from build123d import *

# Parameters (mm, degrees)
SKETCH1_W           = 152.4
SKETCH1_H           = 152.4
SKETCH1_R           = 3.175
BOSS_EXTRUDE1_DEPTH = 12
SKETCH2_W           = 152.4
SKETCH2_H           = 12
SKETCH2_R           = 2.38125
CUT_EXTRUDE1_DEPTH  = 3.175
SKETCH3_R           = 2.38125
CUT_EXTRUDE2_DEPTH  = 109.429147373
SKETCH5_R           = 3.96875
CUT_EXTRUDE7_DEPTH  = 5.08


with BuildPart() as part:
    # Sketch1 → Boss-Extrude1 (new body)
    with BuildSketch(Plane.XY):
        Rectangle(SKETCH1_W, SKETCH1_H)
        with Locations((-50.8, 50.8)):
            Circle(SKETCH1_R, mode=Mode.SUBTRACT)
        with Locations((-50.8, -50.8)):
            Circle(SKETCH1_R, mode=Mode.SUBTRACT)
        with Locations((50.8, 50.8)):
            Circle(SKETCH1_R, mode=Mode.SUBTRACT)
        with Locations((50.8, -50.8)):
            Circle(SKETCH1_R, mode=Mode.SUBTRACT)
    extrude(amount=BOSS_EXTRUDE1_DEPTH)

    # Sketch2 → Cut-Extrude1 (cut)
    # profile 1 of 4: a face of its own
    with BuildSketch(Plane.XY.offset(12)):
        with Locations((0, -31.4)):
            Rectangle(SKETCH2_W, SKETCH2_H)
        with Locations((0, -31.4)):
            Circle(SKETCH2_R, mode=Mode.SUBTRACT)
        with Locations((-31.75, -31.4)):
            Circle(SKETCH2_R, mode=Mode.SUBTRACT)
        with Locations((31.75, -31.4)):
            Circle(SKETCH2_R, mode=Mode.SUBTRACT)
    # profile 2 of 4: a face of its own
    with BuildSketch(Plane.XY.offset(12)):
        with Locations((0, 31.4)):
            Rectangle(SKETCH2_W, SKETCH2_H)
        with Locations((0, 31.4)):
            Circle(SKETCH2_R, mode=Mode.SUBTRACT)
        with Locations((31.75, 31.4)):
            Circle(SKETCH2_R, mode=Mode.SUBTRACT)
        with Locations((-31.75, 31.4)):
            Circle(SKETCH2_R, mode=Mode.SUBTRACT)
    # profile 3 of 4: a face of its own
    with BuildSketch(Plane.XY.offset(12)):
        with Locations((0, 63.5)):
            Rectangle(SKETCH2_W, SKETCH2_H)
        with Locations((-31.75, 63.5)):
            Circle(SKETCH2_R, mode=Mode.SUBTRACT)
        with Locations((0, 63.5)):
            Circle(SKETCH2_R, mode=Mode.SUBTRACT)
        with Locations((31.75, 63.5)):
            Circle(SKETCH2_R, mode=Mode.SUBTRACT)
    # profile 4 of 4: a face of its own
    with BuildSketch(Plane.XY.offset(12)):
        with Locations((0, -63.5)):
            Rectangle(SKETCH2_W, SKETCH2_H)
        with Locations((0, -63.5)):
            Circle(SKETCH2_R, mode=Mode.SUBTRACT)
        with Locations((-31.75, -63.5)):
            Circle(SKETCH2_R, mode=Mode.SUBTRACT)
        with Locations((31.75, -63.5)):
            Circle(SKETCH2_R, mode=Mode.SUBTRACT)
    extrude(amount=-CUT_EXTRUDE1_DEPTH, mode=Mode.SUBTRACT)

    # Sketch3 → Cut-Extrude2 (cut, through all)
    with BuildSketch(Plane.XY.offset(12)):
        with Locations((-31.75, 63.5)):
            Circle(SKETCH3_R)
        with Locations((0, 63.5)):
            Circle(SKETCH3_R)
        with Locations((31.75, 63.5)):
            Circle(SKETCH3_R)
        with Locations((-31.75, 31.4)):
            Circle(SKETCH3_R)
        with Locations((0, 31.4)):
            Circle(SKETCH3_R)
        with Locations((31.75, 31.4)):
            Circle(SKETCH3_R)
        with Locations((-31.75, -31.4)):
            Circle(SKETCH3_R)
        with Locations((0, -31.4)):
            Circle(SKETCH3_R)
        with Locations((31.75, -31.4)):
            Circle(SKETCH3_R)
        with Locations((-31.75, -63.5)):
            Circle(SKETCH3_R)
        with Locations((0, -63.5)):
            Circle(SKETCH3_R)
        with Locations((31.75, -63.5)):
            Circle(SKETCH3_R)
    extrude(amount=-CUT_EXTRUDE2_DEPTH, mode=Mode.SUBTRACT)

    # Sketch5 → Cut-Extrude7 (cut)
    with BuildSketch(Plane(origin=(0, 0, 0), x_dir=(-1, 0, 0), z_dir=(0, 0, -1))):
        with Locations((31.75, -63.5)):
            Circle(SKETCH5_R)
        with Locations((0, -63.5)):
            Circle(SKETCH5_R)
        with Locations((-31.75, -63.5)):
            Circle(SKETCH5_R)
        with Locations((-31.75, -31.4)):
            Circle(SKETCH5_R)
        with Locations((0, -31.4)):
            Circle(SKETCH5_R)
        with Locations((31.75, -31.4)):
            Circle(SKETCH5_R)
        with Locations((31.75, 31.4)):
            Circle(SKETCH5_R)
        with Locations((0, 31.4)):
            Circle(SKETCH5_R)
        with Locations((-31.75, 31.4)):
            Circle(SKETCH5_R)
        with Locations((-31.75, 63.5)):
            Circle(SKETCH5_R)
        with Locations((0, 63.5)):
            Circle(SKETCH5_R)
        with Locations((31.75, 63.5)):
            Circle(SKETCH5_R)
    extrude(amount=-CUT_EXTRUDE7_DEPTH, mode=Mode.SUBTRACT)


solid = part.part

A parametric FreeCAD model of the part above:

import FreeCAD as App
import Part
import Sketcher

V = App.Vector
Q = App.Units.Quantity


def add_polygon(sketch, points):
    """Adds a closed chain of lines whose ends are joined by coincident constraints."""
    first, n = sketch.GeometryCount, len(points)
    for a, b in zip(points, points[1:] + points[:1]):
        sketch.addGeometry(Part.LineSegment(App.Vector(*a, 0), App.Vector(*b, 0)), False)
    for i in range(n):
        sketch.addConstraint(Sketcher.Constraint("Coincident", first + i, 2, first + (i + 1) % n, 1))

doc = App.newDocument("Part")
body = doc.addObject("PartDesign::Body", "Body")

sketch1 = doc.addObject("Sketcher::SketchObject", "Sketch")
body.addObject(sketch1)
sketch1.AttachmentSupport = (doc.XY_Plane, [""])
sketch1.MapMode = "FlatFace"
add_polygon(sketch1, [(-76.2, 76.2), (-76.2, -76.2), (76.2, -76.2), (76.2, 76.2)])
sketch1.addGeometry(Part.Circle(V(-50.8, -50.8, 0), V(0, 0, 1), 3.2), False)
sketch1.addGeometry(Part.Circle(V(50.8, -50.8, 0), V(0, 0, 1), 3.2), False)
sketch1.addGeometry(Part.Circle(V(-50.8, 50.8, 0), V(0, 0, 1), 3.2), False)
sketch1.addGeometry(Part.Circle(V(50.8, 50.8, 0), V(0, 0, 1), 3.2), False)
sketch1.addConstraint([
    Sketcher.Constraint("Vertical", 0),
    Sketcher.Constraint("Horizontal", 1),
    Sketcher.Constraint("Vertical", 2),
    Sketcher.Constraint("Horizontal", 3),
    Sketcher.Constraint("Equal", 4, 5),
    Sketcher.Constraint("Equal", 5, 6),
    Sketcher.Constraint("Equal", 6, 7),
    Sketcher.Constraint("Symmetric", 5, 3, 6, 3, -1, 1),
    Sketcher.Constraint("Symmetric", 4, 3, 7, 3, -1, 1),
    Sketcher.Constraint("Symmetric", 0, 2, 2, 2, -1, 1),
    Sketcher.Constraint("Symmetric", 4, 3, 5, 3, -2),
    Sketcher.Constraint("Equal", 3, 0),
    Sketcher.Constraint("Diameter", 4, Q("0.25 in")),
    Sketcher.Constraint("DistanceX", 1, 1, 1, 2, Q("6 in")),
    Sketcher.Constraint("DistanceX", 4, 3, -1, 1, Q("2 in")),
    Sketcher.Constraint("DistanceY", 4, 3, -1, 1, Q("2 in")),
])
pad1 = doc.addObject("PartDesign::Pad", "Pad")
body.addObject(pad1)
pad1.Profile = sketch1
pad1.Length = 12

sketch2 = doc.addObject("Sketcher::SketchObject", "Sketch001")
body.addObject(sketch2)
sketch2.AttachmentSupport = (doc.XY_Plane, [""])
sketch2.MapMode = "FlatFace"
sketch2.AttachmentOffset = App.Placement(V(0, 0, 12), App.Rotation())
add_polygon(sketch2, [(-76.2, -25.4), (-76.2, -37.4), (76.2, -37.4), (76.2, -25.4)])
sketch2.addGeometry(Part.Circle(V(-31.8, -31.4, 0), V(0, 0, 1), 2.4), False)
sketch2.addGeometry(Part.Circle(V(0, -31.4, 0), V(0, 0, 1), 2.4), False)
sketch2.addGeometry(Part.Circle(V(31.8, -31.4, 0), V(0, 0, 1), 2.4), False)
add_polygon(sketch2, [(-76.2, 37.4), (-76.2, 25.4), (76.2, 25.4), (76.2, 37.4)])
sketch2.addGeometry(Part.Circle(V(-31.8, 31.4, 0), V(0, 0, 1), 2.4), False)
sketch2.addGeometry(Part.Circle(V(0, 31.4, 0), V(0, 0, 1), 2.4), False)
sketch2.addGeometry(Part.Circle(V(31.8, 31.4, 0), V(0, 0, 1), 2.4), False)
add_polygon(sketch2, [(-76.2, 69.5), (-76.2, 57.5), (76.2, 57.5), (76.2, 69.5)])
sketch2.addGeometry(Part.Circle(V(-31.8, 63.5, 0), V(0, 0, 1), 2.4), False)
sketch2.addGeometry(Part.Circle(V(0, 63.5, 0), V(0, 0, 1), 2.4), False)
sketch2.addGeometry(Part.Circle(V(31.8, 63.5, 0), V(0, 0, 1), 2.4), False)
add_polygon(sketch2, [(-76.2, -57.5), (-76.2, -69.5), (76.2, -69.5), (76.2, -57.5)])
sketch2.addGeometry(Part.Circle(V(-31.8, -63.5, 0), V(0, 0, 1), 2.4), False)
sketch2.addGeometry(Part.Circle(V(0, -63.5, 0), V(0, 0, 1), 2.4), False)
sketch2.addGeometry(Part.Circle(V(31.8, -63.5, 0), V(0, 0, 1), 2.4), False)
sketch2.addConstraint([
    Sketcher.Constraint("Vertical", 0),
    Sketcher.Constraint("Horizontal", 1),
    Sketcher.Constraint("Vertical", 2),
    Sketcher.Constraint("Horizontal", 3),
    Sketcher.Constraint("Vertical", 7),
    Sketcher.Constraint("Horizontal", 8),
    Sketcher.Constraint("Vertical", 9),
    Sketcher.Constraint("Horizontal", 10),
    Sketcher.Constraint("Vertical", 14),
    Sketcher.Constraint("Horizontal", 15),
    Sketcher.Constraint("Vertical", 16),
    Sketcher.Constraint("Horizontal", 17),
    Sketcher.Constraint("Vertical", 21),
    Sketcher.Constraint("Horizontal", 22),
    Sketcher.Constraint("Vertical", 23),
    Sketcher.Constraint("Horizontal", 24),
    Sketcher.Constraint("Equal", 4, 5),
    Sketcher.Constraint("Equal", 5, 6),
    Sketcher.Constraint("Equal", 6, 11),
    Sketcher.Constraint("Equal", 11, 12),
    Sketcher.Constraint("Equal", 12, 13),
    Sketcher.Constraint("Equal", 13, 18),
    Sketcher.Constraint("Equal", 18, 19),
    Sketcher.Constraint("Equal", 19, 20),
    Sketcher.Constraint("Equal", 20, 25),
    Sketcher.Constraint("Equal", 25, 26),
    Sketcher.Constraint("Equal", 26, 27),
    Sketcher.Constraint("Symmetric", 6, 3, 11, 3, -1, 1),
    Sketcher.Constraint("Symmetric", 5, 3, 12, 3, -1, 1),
    Sketcher.Constraint("Symmetric", 4, 3, 13, 3, -1, 1),
    Sketcher.Constraint("Symmetric", 20, 3, 25, 3, -1, 1),
    Sketcher.Constraint("Symmetric", 19, 3, 26, 3, -1, 1),
    Sketcher.Constraint("Symmetric", 18, 3, 27, 3, -1, 1),
    Sketcher.Constraint("Symmetric", 2, 2, 7, 2, -1, 1),
    Sketcher.Constraint("Symmetric", 0, 2, 9, 2, -1, 1),
    Sketcher.Constraint("Symmetric", 16, 2, 21, 2, -1, 1),
    Sketcher.Constraint("Symmetric", 14, 2, 23, 2, -1, 1),
    Sketcher.Constraint("Symmetric", 4, 3, 6, 3, -2),
    Sketcher.Constraint("Symmetric", 18, 3, 20, 3, -2),
    Sketcher.Constraint("PointOnObject", 5, 3, -2),
    Sketcher.Constraint("PointOnObject", 19, 3, -2),
    Sketcher.Constraint("Horizontal", 4, 3, 5, 3),
    Sketcher.Constraint("Horizontal", 18, 3, 19, 3),
    Sketcher.Constraint("Vertical", 11, 3, 18, 3),
    Sketcher.Constraint("Vertical", 3, 2, 7, 2),
    Sketcher.Constraint("Vertical", 10, 2, 14, 2),
    Sketcher.Constraint("Vertical", 9, 2, 15, 2),
    Sketcher.Constraint("Equal", 9, 14),
    Sketcher.Constraint("DistanceX", 1, 1, 1, 2, Q("6 in")),
    Sketcher.Constraint("Diameter", 4, Q("0.1875 in")),
    Sketcher.Constraint("DistanceY", 2, 2, -1, 1, Q("1 in")),
    Sketcher.Constraint("DistanceY", -1, 1, 18, 3, Q("2.5 in")),
    Sketcher.Constraint("DistanceX", 4, 3, 6, 3, Q("2.5 in")),
    Sketcher.Constraint("DistanceY", 13, 3, 16, 2, Q("1.5 in")),
    Sketcher.Constraint("DistanceY", 0, 2, 0, 1, 12.0),
    Sketcher.Constraint("DistanceY", 4, 3, -1, 1, 31.4),
])
pocket1 = doc.addObject("PartDesign::Pocket", "Pocket")
body.addObject(pocket1)
pocket1.Profile = sketch2
pocket1.Length = Q("0.125 in")

sketch3 = doc.addObject("Sketcher::SketchObject", "Sketch002")
body.addObject(sketch3)
sketch3.AttachmentSupport = (doc.XY_Plane, [""])
sketch3.MapMode = "FlatFace"
sketch3.AttachmentOffset = App.Placement(V(0, 0, 12), App.Rotation())
sketch3.addGeometry([
    Part.Circle(V(-31.8, 63.5, 0), V(0, 0, 1), 2.4),
    Part.Circle(V(0, 63.5, 0), V(0, 0, 1), 2.4),
    Part.Circle(V(31.8, 63.5, 0), V(0, 0, 1), 2.4),
    Part.Circle(V(-31.8, 31.4, 0), V(0, 0, 1), 2.4),
    Part.Circle(V(0, 31.4, 0), V(0, 0, 1), 2.4),
    Part.Circle(V(31.8, 31.4, 0), V(0, 0, 1), 2.4),
    Part.Circle(V(-31.8, -31.4, 0), V(0, 0, 1), 2.4),
    Part.Circle(V(0, -31.4, 0), V(0, 0, 1), 2.4),
    Part.Circle(V(31.8, -31.4, 0), V(0, 0, 1), 2.4),
    Part.Circle(V(-31.8, -63.5, 0), V(0, 0, 1), 2.4),
    Part.Circle(V(0, -63.5, 0), V(0, 0, 1), 2.4),
    Part.Circle(V(31.8, -63.5, 0), V(0, 0, 1), 2.4),
], False)
sketch3.addConstraint([
    Sketcher.Constraint("Equal", 0, 1),
    Sketcher.Constraint("Equal", 1, 2),
    Sketcher.Constraint("Equal", 2, 3),
    Sketcher.Constraint("Equal", 3, 4),
    Sketcher.Constraint("Equal", 4, 5),
    Sketcher.Constraint("Equal", 5, 6),
    Sketcher.Constraint("Equal", 6, 7),
    Sketcher.Constraint("Equal", 7, 8),
    Sketcher.Constraint("Equal", 8, 9),
    Sketcher.Constraint("Equal", 9, 10),
    Sketcher.Constraint("Equal", 10, 11),
    Sketcher.Constraint("Symmetric", 5, 3, 6, 3, -1, 1),
    Sketcher.Constraint("Symmetric", 4, 3, 7, 3, -1, 1),
    Sketcher.Constraint("Symmetric", 3, 3, 8, 3, -1, 1),
    Sketcher.Constraint("Symmetric", 2, 3, 9, 3, -1, 1),
    Sketcher.Constraint("Symmetric", 1, 3, 10, 3, -1, 1),
    Sketcher.Constraint("Symmetric", 0, 3, 11, 3, -1, 1),
    Sketcher.Constraint("Symmetric", 0, 3, 2, 3, -2),
    Sketcher.Constraint("Symmetric", 3, 3, 5, 3, -2),
    Sketcher.Constraint("PointOnObject", 1, 3, -2),
    Sketcher.Constraint("PointOnObject", 4, 3, -2),
    Sketcher.Constraint("Horizontal", 0, 3, 1, 3),
    Sketcher.Constraint("Horizontal", 3, 3, 4, 3),
    Sketcher.Constraint("Vertical", 0, 3, 3, 3),
    Sketcher.Constraint("Diameter", 0, Q("0.1875 in")),
    Sketcher.Constraint("DistanceY", -1, 1, 0, 3, Q("2.5 in")),
    Sketcher.Constraint("DistanceX", 0, 3, 2, 3, Q("2.5 in")),
    Sketcher.Constraint("DistanceY", -1, 1, 3, 3, 31.4),
])
pocket2 = doc.addObject("PartDesign::Pocket", "Pocket001")
body.addObject(pocket2)
pocket2.Profile = sketch3
pocket2.Type = "ThroughAll"

sketch4 = doc.addObject("Sketcher::SketchObject", "Sketch003")
body.addObject(sketch4)
sketch4.AttachmentSupport = (doc.XY_Plane, [""])
sketch4.MapMode = "FlatFace"
sketch4.addGeometry([
    Part.Circle(V(-31.8, -63.5, 0), V(0, 0, 1), 4),
    Part.Circle(V(0, -63.5, 0), V(0, 0, 1), 4),
    Part.Circle(V(31.8, -63.5, 0), V(0, 0, 1), 4),
    Part.Circle(V(31.8, -31.4, 0), V(0, 0, 1), 4),
    Part.Circle(V(0, -31.4, 0), V(0, 0, 1), 4),
    Part.Circle(V(-31.8, -31.4, 0), V(0, 0, 1), 4),
    Part.Circle(V(-31.8, 31.4, 0), V(0, 0, 1), 4),
    Part.Circle(V(0, 31.4, 0), V(0, 0, 1), 4),
    Part.Circle(V(31.8, 31.4, 0), V(0, 0, 1), 4),
    Part.Circle(V(31.8, 63.5, 0), V(0, 0, 1), 4),
    Part.Circle(V(0, 63.5, 0), V(0, 0, 1), 4),
    Part.Circle(V(-31.8, 63.5, 0), V(0, 0, 1), 4),
], False)
sketch4.addConstraint([
    Sketcher.Constraint("Equal", 0, 1),
    Sketcher.Constraint("Equal", 1, 2),
    Sketcher.Constraint("Equal", 2, 3),
    Sketcher.Constraint("Equal", 3, 4),
    Sketcher.Constraint("Equal", 4, 5),
    Sketcher.Constraint("Equal", 5, 6),
    Sketcher.Constraint("Equal", 6, 7),
    Sketcher.Constraint("Equal", 7, 8),
    Sketcher.Constraint("Equal", 8, 9),
    Sketcher.Constraint("Equal", 9, 10),
    Sketcher.Constraint("Equal", 10, 11),
    Sketcher.Constraint("Symmetric", 3, 3, 6, 3, -1, 1),
    Sketcher.Constraint("Symmetric", 4, 3, 7, 3, -1, 1),
    Sketcher.Constraint("Symmetric", 5, 3, 8, 3, -1, 1),
    Sketcher.Constraint("Symmetric", 0, 3, 9, 3, -1, 1),
    Sketcher.Constraint("Symmetric", 1, 3, 10, 3, -1, 1),
    Sketcher.Constraint("Symmetric", 2, 3, 11, 3, -1, 1),
    Sketcher.Constraint("Symmetric", 0, 3, 2, 3, -2),
    Sketcher.Constraint("Symmetric", 3, 3, 5, 3, -2),
    Sketcher.Constraint("PointOnObject", 1, 3, -2),
    Sketcher.Constraint("PointOnObject", 4, 3, -2),
    Sketcher.Constraint("Horizontal", 0, 3, 1, 3),
    Sketcher.Constraint("Horizontal", 3, 3, 4, 3),
    Sketcher.Constraint("Vertical", 2, 3, 3, 3),
    Sketcher.Constraint("Diameter", 0, Q("0.3125 in")),
    Sketcher.Constraint("DistanceY", 0, 3, -1, 1, Q("2.5 in")),
    Sketcher.Constraint("DistanceX", 0, 3, 2, 3, Q("2.5 in")),
    Sketcher.Constraint("DistanceY", 3, 3, -1, 1, 31.4),
])
pocket3 = doc.addObject("PartDesign::Pocket", "Pocket002")
body.addObject(pocket3)
pocket3.Profile = sketch4
pocket3.Length = Q("0.2 in")
pocket3.Reversed = True

doc.recompute()
